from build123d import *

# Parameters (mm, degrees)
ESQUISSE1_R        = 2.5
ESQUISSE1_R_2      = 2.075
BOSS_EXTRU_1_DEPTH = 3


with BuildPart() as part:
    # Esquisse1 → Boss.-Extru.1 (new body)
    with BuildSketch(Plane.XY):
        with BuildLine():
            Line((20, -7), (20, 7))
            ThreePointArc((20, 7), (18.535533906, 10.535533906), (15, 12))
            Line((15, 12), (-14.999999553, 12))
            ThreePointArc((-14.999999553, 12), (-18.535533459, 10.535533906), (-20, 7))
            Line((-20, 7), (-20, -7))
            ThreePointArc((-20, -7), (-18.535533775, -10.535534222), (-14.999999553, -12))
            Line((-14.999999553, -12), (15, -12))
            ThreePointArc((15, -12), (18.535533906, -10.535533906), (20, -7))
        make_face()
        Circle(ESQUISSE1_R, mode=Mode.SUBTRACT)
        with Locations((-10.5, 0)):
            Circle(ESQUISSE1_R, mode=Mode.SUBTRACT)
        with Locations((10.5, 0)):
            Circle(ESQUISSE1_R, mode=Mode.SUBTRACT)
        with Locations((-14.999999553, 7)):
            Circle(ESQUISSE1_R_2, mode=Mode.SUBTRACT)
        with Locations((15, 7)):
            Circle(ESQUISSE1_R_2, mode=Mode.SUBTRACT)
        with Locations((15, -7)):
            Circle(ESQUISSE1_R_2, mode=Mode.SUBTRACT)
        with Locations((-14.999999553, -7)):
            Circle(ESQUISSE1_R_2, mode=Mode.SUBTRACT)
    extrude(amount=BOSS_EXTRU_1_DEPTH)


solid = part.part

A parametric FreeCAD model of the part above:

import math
import FreeCAD as App
import Part
import Sketcher

V = App.Vector

doc = App.newDocument("Part")
params = doc.addObject("Spreadsheet::Sheet", "Params")
for row, (alias, value) in enumerate([
    ("sketch1_diameter", "5 mm"),
    ("sketch1_radius", "5 mm"),
    ("sketch1_diameter2", "4.15 mm"),
    ("sketch1_width", "30 mm"),
    ("sketch1_height", "14 mm"),
    ("pad1_length", "3 mm"),
], start=1):
    params.set(f"A{row}", alias)
    params.set(f"B{row}", "=" + value)
    params.setAlias(f"B{row}", alias)

body = doc.addObject("PartDesign::Body", "Body")

sketch1 = body.newObject("Sketcher::SketchObject", "Sketch")
sketch1.AttachmentSupport = (doc.getObject("XY_Plane"), [""])
sketch1.MapMode = "FlatFace"
sketch1.addGeometry([
    Part.LineSegment(V(20, -7, 0), V(20, 7, 0)),
    Part.ArcOfCircle(Part.Circle(V(15, 7, 0), V(0, 0, 1), 5), math.radians(0), math.radians(90)),
    Part.LineSegment(V(15, 12, 0), V(-15, 12, 0)),
    Part.ArcOfCircle(Part.Circle(V(-14.999999, 6.999999, 0), V(0, 0, 1), 5.000001), math.radians(90.000004), math.radians(179.999991)),
    Part.LineSegment(V(-20, 7, 0), V(-20, -7, 0)),
    Part.ArcOfCircle(Part.Circle(V(-15, -7, 0), V(0, 0, 1), 5), math.radians(179.999996), math.radians(270.000009)),
    Part.LineSegment(V(-15, -12, 0), V(15, -12, 0)),
    Part.ArcOfCircle(Part.Circle(V(15, -7, 0), V(0, 0, 1), 5), math.radians(-90), math.radians(0)),
    Part.Circle(V(-15, -7, 0), V(0, 0, 1), 2.075),
    Part.Circle(V(15, -7, 0), V(0, 0, 1), 2.075),
    Part.Circle(V(-10.5, 0, 0), V(0, 0, 1), 2.5),
    Part.Circle(V(0, 0, 0), V(0, 0, 1), 2.5),
    Part.Circle(V(-15, 7, 0), V(0, 0, 1), 2.075),
    Part.Circle(V(10.5, 0, 0), V(0, 0, 1), 2.5),
    Part.Circle(V(15, 7, 0), V(0, 0, 1), 2.075),
], False)
sketch1.addConstraint([
    Sketcher.Constraint("Tangent", 0, 2, 1, 1),
    Sketcher.Constraint("Tangent", 1, 2, 2, 1),
    Sketcher.Constraint("Tangent", 2, 2, 3, 1),
    Sketcher.Constraint("Tangent", 3, 2, 4, 1),
    Sketcher.Constraint("Tangent", 4, 2, 5, 1),
    Sketcher.Constraint("Tangent", 5, 2, 6, 1),
    Sketcher.Constraint("Tangent", 6, 2, 7, 1),
    Sketcher.Constraint("Tangent", 7, 2, 0, 1),
    Sketcher.Constraint("Vertical", 0),
    Sketcher.Constraint("Horizontal", 2),
    Sketcher.Constraint("Vertical", 4),
    Sketcher.Constraint("Horizontal", 6),
    Sketcher.Constraint("Coincident", 11, 3, -1, 1),
    Sketcher.Constraint("Coincident", 8, 3, 5, 3),
    Sketcher.Constraint("Coincident", 9, 3, 7, 3),
    Sketcher.Constraint("Coincident", 12, 3, 3, 3),
    Sketcher.Constraint("Coincident", 14, 3, 1, 3),
    Sketcher.Constraint("Equal", 1, 3),
    Sketcher.Constraint("Equal", 3, 5),
    Sketcher.Constraint("Equal", 5, 7),
    Sketcher.Constraint("Equal", 8, 9),
    Sketcher.Constraint("Equal", 10, 11),
    Sketcher.Constraint("Equal", 9, 12),
    Sketcher.Constraint("Equal", 11, 13),
    Sketcher.Constraint("Equal", 12, 14),
    Sketcher.Constraint("Symmetric", 1, 3, 5, 3, -1, 1),
    Sketcher.Constraint("Symmetric", 10, 3, 13, 3, -1, 1),
    Sketcher.Constraint("PointOnObject", 10, 3, -1),
    Sketcher.Constraint("Diameter", 10, 5.0),
    Sketcher.Constraint("Radius", 1, 5.0),
    Sketcher.Constraint("Diameter", 8, 4.15),
    Sketcher.Constraint("DistanceX", 2, 2, 2, 1, 30.0),
    Sketcher.Constraint("DistanceY", 0, 1, 0, 2, 14.0),
    Sketcher.Constraint("DistanceX", 10, 3, 13, 3, 21.0),
])
sketch1.setExpression("Constraints[28]", "Params.sketch1_diameter")
sketch1.setExpression("Constraints[29]", "Params.sketch1_radius")
sketch1.setExpression("Constraints[30]", "Params.sketch1_diameter2")
sketch1.setExpression("Constraints[31]", "Params.sketch1_width")
sketch1.setExpression("Constraints[32]", "Params.sketch1_height")
pad1 = body.newObject("PartDesign::Pad", "Pad")
pad1.Profile = sketch1
pad1.setExpression("Length", "Params.pad1_length")

doc.recompute()
